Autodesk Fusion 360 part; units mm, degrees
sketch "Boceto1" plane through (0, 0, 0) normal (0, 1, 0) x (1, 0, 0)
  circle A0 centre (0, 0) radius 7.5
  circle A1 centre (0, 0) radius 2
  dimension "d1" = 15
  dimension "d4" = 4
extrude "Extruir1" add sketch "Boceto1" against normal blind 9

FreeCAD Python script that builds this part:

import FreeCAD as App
import Part
import Sketcher
from FreeCAD import Vector

doc = App.newDocument("Part")
params = doc.addObject("Spreadsheet::Sheet", "Params")
for row, (alias, value) in enumerate([
    ("sketch1_diameter", "15 mm"),
    ("sketch1_diameter2", "4 mm"),
    ("pad1_length", "9 mm"),
], start=1):
    params.set(f"A{row}", alias)
    params.set(f"B{row}", "=" + value)
    params.setAlias(f"B{row}", alias)

body = doc.addObject("PartDesign::Body", "Body")

# Sketch on XZ plane
sketch1 = doc.addObject("Sketcher::SketchObject", "Sketch")
body.addObject(sketch1)
sketch1.AttachmentSupport = (doc.XZ_Plane, [""])
sketch1.MapMode = "FlatFace"
sketch1.addGeometry([
    Part.Circle(Vector(0, 0, 0), Vector(0, 0, 1), 7.5),
    Part.Circle(Vector(0, 0, 0), Vector(0, 0, 1), 2),
], False)
sketch1.addConstraint([
    Sketcher.Constraint("Coincident", 0, 3, -1, 1),
    Sketcher.Constraint("Coincident", 1, 3, -1, 1),
    Sketcher.Constraint("Diameter", 0, 15.0),
    Sketcher.Constraint("Diameter", 1, 4.0),
])
sketch1.setExpression("Constraints[2]", "Params.sketch1_diameter")
sketch1.setExpression("Constraints[3]", "Params.sketch1_diameter2")
pad1 = doc.addObject("PartDesign::Pad", "Pad")
body.addObject(pad1)
pad1.Profile = sketch1
pad1.setExpression("Length", "Params.pad1_length")

doc.recompute()
